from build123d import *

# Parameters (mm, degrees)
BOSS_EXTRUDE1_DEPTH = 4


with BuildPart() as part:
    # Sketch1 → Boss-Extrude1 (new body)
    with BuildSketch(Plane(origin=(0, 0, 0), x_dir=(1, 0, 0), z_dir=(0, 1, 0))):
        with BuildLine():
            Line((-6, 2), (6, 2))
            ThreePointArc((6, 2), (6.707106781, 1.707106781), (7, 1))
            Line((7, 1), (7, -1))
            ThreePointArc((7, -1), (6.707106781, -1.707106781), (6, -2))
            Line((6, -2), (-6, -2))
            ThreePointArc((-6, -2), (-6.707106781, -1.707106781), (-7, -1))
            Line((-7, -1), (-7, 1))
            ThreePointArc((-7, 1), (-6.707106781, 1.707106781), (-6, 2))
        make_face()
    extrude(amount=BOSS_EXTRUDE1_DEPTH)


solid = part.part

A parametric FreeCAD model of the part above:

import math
import FreeCAD as App
import Part
import Sketcher

V = App.Vector

doc = App.newDocument("Part")
body = doc.addObject("PartDesign::Body", "Body")

# Sketch on XZ plane
sketch1 = body.newObject("Sketcher::SketchObject", "Sketch")
sketch1.AttachmentSupport = (doc.getObject("XZ_Plane"), [""])
sketch1.MapMode = "FlatFace"
sketch1.addGeometry([
    Part.LineSegment(V(6, -2, 0), V(-6, -2, 0)),  # 0
    Part.ArcOfCircle(Part.Circle(V(-6, -1, 0), V(0, 0, 1), 1), math.radians(-180), math.radians(-90)),  # 1
    Part.LineSegment(V(-7, -1, 0), V(-7, 1, 0)),  # 2
    Part.ArcOfCircle(Part.Circle(V(-6, 1, 0), V(0, 0, 1), 1), math.radians(90), math.radians(180)),  # 3
    Part.LineSegment(V(-6, 2, 0), V(6, 2, 0)),  # 4
    Part.ArcOfCircle(Part.Circle(V(6, 1, 0), V(0, 0, 1), 1), math.radians(0), math.radians(90)),  # 5
    Part.LineSegment(V(7, 1, 0), V(7, -1, 0)),  # 6
    Part.ArcOfCircle(Part.Circle(V(6, -1, 0), V(0, 0, 1), 1), math.radians(-90), math.radians(0)),  # 7
], False)
sketch1.addConstraint([
    Sketcher.Constraint("Tangent", 0, 2, 1, 2),
    Sketcher.Constraint("Tangent", 1, 1, 2, 1),
    Sketcher.Constraint("Tangent", 2, 2, 3, 2),
    Sketcher.Constraint("Tangent", 3, 1, 4, 1),
    Sketcher.Constraint("Tangent", 4, 2, 5, 2),
    Sketcher.Constraint("Tangent", 5, 1, 6, 1),
    Sketcher.Constraint("Tangent", 6, 2, 7, 2),
    Sketcher.Constraint("Tangent", 7, 1, 0, 1),
    Sketcher.Constraint("Horizontal", 0),
    Sketcher.Constraint("Vertical", 2),
    Sketcher.Constraint("Horizontal", 4),
    Sketcher.Constraint("Vertical", 6),
    Sketcher.Constraint("Equal", 1, 3),
    Sketcher.Constraint("Equal", 3, 5),
    Sketcher.Constraint("Equal", 5, 7),
    Sketcher.Constraint("Symmetric", 1, 3, 5, 3, -1, 1),
    Sketcher.Constraint("Radius", 1, 1.0),
    Sketcher.Constraint("DistanceX", 0, 2, 0, 1, 12.0),
    Sketcher.Constraint("DistanceY", 2, 1, 2, 2, 2.0),
])
pad1 = body.newObject("PartDesign::Pad", "Pad")
pad1.Profile = sketch1
pad1.Length = 4
pad1.Reversed = True

doc.recompute()
